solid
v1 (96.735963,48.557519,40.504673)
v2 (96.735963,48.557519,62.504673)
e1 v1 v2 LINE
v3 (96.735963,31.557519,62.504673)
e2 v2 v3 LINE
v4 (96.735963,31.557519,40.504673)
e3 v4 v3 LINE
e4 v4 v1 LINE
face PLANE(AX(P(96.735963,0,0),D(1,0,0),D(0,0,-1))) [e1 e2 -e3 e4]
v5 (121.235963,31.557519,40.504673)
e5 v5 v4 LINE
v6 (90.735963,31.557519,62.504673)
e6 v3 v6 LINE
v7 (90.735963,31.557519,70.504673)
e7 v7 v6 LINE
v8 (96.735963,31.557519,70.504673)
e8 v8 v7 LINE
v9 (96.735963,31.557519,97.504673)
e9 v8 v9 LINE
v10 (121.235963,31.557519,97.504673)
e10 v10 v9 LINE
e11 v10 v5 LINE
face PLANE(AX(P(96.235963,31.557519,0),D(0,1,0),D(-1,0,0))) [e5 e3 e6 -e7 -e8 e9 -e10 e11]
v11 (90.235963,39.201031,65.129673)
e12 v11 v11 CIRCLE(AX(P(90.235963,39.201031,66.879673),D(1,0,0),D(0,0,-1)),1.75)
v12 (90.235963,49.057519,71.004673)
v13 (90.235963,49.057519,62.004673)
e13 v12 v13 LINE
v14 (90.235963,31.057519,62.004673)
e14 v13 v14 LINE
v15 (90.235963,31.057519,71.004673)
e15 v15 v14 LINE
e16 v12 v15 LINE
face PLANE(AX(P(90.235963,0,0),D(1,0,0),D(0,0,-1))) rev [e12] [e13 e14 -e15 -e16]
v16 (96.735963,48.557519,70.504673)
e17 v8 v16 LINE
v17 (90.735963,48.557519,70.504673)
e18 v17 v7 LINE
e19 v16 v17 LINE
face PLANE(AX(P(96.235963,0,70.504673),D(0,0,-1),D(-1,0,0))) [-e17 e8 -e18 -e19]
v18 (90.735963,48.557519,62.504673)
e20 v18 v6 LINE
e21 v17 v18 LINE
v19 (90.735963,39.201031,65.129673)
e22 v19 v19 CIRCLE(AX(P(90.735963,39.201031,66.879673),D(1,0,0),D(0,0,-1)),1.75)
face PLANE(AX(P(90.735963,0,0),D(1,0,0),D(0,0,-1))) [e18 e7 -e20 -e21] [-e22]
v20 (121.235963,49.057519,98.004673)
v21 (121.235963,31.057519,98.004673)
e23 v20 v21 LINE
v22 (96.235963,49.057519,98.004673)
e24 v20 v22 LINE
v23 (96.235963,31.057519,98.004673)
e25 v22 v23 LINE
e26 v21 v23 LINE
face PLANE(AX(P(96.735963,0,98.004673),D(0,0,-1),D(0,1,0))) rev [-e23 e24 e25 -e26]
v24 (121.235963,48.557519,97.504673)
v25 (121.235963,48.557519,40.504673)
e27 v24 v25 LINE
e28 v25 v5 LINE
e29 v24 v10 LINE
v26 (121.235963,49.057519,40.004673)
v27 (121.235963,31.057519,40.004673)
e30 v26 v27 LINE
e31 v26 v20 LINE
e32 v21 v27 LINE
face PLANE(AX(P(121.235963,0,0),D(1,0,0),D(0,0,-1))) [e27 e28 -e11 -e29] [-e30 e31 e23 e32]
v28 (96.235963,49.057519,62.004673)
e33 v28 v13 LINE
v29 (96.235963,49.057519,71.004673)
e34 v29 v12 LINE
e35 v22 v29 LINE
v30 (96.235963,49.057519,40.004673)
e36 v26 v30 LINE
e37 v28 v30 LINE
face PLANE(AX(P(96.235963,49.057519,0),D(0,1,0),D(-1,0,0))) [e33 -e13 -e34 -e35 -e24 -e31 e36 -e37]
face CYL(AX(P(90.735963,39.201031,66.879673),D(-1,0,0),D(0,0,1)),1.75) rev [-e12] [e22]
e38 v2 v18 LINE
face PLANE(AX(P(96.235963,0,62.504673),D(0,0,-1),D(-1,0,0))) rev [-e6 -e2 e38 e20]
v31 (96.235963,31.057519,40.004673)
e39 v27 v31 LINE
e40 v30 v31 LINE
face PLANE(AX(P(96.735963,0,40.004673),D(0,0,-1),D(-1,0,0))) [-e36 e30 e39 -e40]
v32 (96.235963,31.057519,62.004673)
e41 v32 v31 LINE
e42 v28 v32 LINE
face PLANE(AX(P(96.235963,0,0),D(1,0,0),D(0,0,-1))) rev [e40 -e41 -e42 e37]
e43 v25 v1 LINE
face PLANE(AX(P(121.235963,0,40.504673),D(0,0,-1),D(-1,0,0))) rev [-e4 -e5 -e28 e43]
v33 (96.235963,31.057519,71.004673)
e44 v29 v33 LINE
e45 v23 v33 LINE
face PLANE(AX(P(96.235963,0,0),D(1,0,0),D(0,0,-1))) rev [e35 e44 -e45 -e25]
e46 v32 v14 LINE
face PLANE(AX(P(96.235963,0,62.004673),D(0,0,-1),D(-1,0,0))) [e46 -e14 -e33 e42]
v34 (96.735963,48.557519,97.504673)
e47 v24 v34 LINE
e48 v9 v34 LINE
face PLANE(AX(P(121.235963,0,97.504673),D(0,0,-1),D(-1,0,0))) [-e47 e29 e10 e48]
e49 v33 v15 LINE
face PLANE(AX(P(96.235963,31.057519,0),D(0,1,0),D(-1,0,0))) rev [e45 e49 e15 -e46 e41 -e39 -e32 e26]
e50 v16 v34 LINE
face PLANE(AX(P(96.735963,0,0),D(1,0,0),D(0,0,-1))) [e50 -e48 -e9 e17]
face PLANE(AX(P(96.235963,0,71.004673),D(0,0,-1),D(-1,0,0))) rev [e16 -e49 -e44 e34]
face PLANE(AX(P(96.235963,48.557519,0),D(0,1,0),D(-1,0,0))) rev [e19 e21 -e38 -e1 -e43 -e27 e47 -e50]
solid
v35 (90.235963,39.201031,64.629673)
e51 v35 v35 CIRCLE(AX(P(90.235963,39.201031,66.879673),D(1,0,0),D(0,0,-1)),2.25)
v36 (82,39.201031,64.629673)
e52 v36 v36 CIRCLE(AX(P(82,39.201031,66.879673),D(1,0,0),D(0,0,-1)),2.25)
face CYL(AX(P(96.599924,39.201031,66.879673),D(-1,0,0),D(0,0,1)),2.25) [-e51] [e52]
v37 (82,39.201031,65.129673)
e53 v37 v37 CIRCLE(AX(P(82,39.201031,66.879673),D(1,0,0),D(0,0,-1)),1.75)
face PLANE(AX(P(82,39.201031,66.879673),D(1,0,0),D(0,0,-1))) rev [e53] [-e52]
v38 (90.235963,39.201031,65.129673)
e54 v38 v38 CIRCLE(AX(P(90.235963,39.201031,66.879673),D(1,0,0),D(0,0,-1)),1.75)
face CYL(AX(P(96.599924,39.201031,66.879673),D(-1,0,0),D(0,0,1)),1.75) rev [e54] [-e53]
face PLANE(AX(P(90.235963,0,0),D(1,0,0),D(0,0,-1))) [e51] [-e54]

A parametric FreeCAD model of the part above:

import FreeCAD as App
import Part
import Sketcher
Q = App.Units.Quantity


def add_polygon(sketch, points):
    """Adds a closed chain of lines whose ends are joined by coincident constraints."""
    first, n = sketch.GeometryCount, len(points)
    for a, b in zip(points, points[1:] + points[:1]):
        sketch.addGeometry(Part.LineSegment(App.Vector(*a, 0), App.Vector(*b, 0)), False)
    for i in range(n):
        sketch.addConstraint(Sketcher.Constraint("Coincident", first + i, 2, first + (i + 1) % n, 1))

doc = App.newDocument("Part")
body = doc.addObject("PartDesign::Body", "Body")

# Sketch on YZ plane
sketch1 = body.newObject("Sketcher::SketchObject", "Sketch")
sketch1.AttachmentSupport = (doc.getObject("YZ_Plane"), [""])
sketch1.MapMode = "FlatFace"
sketch1.AttachmentOffset = App.Placement(App.Vector(0, 0, 82), App.Rotation())
sketch1.addGeometry([
    Part.Circle(App.Vector(39.201031, 66.879673, 0), App.Vector(0, 0, 1), 2.25),
    Part.Circle(App.Vector(39.201031, 66.879673, 0), App.Vector(0, 0, 1), 1.75),
], False)
sketch1.addConstraint([
    Sketcher.Constraint("Coincident", 1, 3, 0, 3),
    Sketcher.Constraint("Diameter", 0, Q("4.5 mm")),
    Sketcher.Constraint("Diameter", 1, Q("3.5 mm")),
    Sketcher.Constraint("DistanceX", -1, 1, 0, 3, Q("39.201031 mm")),
    Sketcher.Constraint("DistanceY", -1, 1, 0, 3, Q("66.879673 mm")),
])
pad1 = body.newObject("PartDesign::Pad", "Pad")
pad1.Profile = sketch1
pad1.Length = 8.235963
body2 = doc.addObject("PartDesign::Body", "Body001")

# Sketch on YZ plane
sketch2 = body2.newObject("Sketcher::SketchObject", "Sketch001")
sketch2.AttachmentSupport = (doc.getObject("YZ_Plane001"), [""])
sketch2.MapMode = "FlatFace"
sketch2.AttachmentOffset = App.Placement(App.Vector(0, 0, 90.235963), App.Rotation())
add_polygon(sketch2, [(49.057519, 71.004673), (31.057519, 71.004673), (31.057519, 62.004673), (49.057519, 62.004673)])  # lines 0-3
add_polygon(sketch2, [(31.557519, 62.504673), (31.557519, 70.504673), (48.557519, 70.504673), (48.557519, 62.504673)])  # lines 4-7
sketch2.addConstraint([
    Sketcher.Constraint("Horizontal", 0),
    Sketcher.Constraint("Vertical", 1),
    Sketcher.Constraint("Horizontal", 2),
    Sketcher.Constraint("Vertical", 3),
    Sketcher.Constraint("Vertical", 4),
    Sketcher.Constraint("Horizontal", 5),
    Sketcher.Constraint("Vertical", 6),
    Sketcher.Constraint("Horizontal", 7),
    Sketcher.Constraint("DistanceX", 0, 2, 0, 1, Q("18 mm")),
    Sketcher.Constraint("DistanceX", 5, 1, 5, 2, Q("17 mm")),
    Sketcher.Constraint("DistanceY", 1, 2, 1, 1, Q("9 mm")),
    Sketcher.Constraint("DistanceY", 4, 1, 4, 2, Q("8 mm")),
    Sketcher.Constraint("DistanceX", 0, 2, 4, 2, Q("0.5 mm")),
    Sketcher.Constraint("DistanceY", 4, 2, 0, 2, Q("0.5 mm")),
    Sketcher.Constraint("DistanceX", -1, 1, 0, 2, Q("31.057519 mm")),
    Sketcher.Constraint("DistanceY", -1, 1, 0, 2, Q("71.004673 mm")),
])
pad2 = body2.newObject("PartDesign::Pad", "Pad001")
pad2.Profile = sketch2
pad2.Length = 6

# Sketch on YZ plane
sketch3 = body2.newObject("Sketcher::SketchObject", "Sketch002")
sketch3.AttachmentSupport = (doc.getObject("YZ_Plane001"), [""])
sketch3.MapMode = "FlatFace"
sketch3.AttachmentOffset = App.Placement(App.Vector(0, 0, 90.235963), App.Rotation())
add_polygon(sketch3, [(48.557519, 70.504673), (31.557519, 70.504673), (31.557519, 62.504673), (48.557519, 62.504673)])  # lines 0-3
sketch3.addGeometry(Part.Circle(App.Vector(39.201031, 66.879673, 0), App.Vector(0, 0, 1), 1.75), False)  # 4
sketch3.addConstraint([
    Sketcher.Constraint("Horizontal", 0),
    Sketcher.Constraint("Vertical", 1),
    Sketcher.Constraint("Horizontal", 2),
    Sketcher.Constraint("Vertical", 3),
    Sketcher.Constraint("Diameter", 4, Q("3.5 mm")),
    Sketcher.Constraint("DistanceX", 0, 2, 0, 1, Q("17 mm")),
    Sketcher.Constraint("DistanceY", 1, 2, 1, 1, Q("8 mm")),
    Sketcher.Constraint("DistanceY", 4, 3, 0, 2, Q("3.625 mm")),
    Sketcher.Constraint("DistanceX", -1, 1, 4, 3, Q("39.201031 mm")),
    Sketcher.Constraint("DistanceX", -1, 1, 0, 2, Q("31.557519 mm")),
    Sketcher.Constraint("DistanceY", -1, 1, 4, 3, Q("66.879673 mm")),
])
pad3 = body2.newObject("PartDesign::Pad", "Pad002")
pad3.Profile = sketch3
pad3.Length = 0.5

# Sketch on YZ plane
sketch4 = body2.newObject("Sketcher::SketchObject", "Sketch003")
sketch4.AttachmentSupport = (doc.getObject("YZ_Plane001"), [""])
sketch4.MapMode = "FlatFace"
sketch4.AttachmentOffset = App.Placement(App.Vector(0, 0, 96.235963), App.Rotation())
add_polygon(sketch4, [(49.057519, 98.004673), (31.057519, 98.004673), (31.057519, 40.004673), (49.057519, 40.004673)])  # lines 0-3
add_polygon(sketch4, [(31.557519, 62.504673), (31.557519, 70.504673), (48.557519, 70.504673), (48.557519, 62.504673)])  # lines 4-7
sketch4.addConstraint([
    Sketcher.Constraint("Horizontal", 0),
    Sketcher.Constraint("Vertical", 1),
    Sketcher.Constraint("Horizontal", 2),
    Sketcher.Constraint("Vertical", 3),
    Sketcher.Constraint("Vertical", 4),
    Sketcher.Constraint("Horizontal", 5),
    Sketcher.Constraint("Vertical", 6),
    Sketcher.Constraint("Horizontal", 7),
    Sketcher.Constraint("DistanceX", 0, 2, 0, 1, Q("18 mm")),
    Sketcher.Constraint("DistanceX", 5, 1, 5, 2, Q("17 mm")),
    Sketcher.Constraint("DistanceY", 1, 2, 1, 1, Q("58 mm")),
    Sketcher.Constraint("DistanceY", 4, 1, 4, 2, Q("8 mm")),
    Sketcher.Constraint("DistanceX", 0, 2, 4, 2, Q("0.5 mm")),
    Sketcher.Constraint("DistanceY", 4, 2, 0, 2, Q("27.5 mm")),
    Sketcher.Constraint("DistanceX", -1, 1, 0, 2, Q("31.057519 mm")),
    Sketcher.Constraint("DistanceY", -1, 1, 0, 2, Q("98.004673 mm")),
])
pad4 = body2.newObject("PartDesign::Pad", "Pad003")
pad4.Profile = sketch4
pad4.Length = 0.5

# Sketch on YZ plane
sketch5 = body2.newObject("Sketcher::SketchObject", "Sketch004")
sketch5.AttachmentSupport = (doc.getObject("YZ_Plane001"), [""])
sketch5.MapMode = "FlatFace"
sketch5.AttachmentOffset = App.Placement(App.Vector(0, 0, 96.235963), App.Rotation())
add_polygon(sketch5, [(49.057519, 98.004673), (31.057519, 98.004673), (31.057519, 40.004673), (49.057519, 40.004673)])  # lines 0-3
add_polygon(sketch5, [(31.557519, 97.504673), (48.557519, 97.504673), (48.557519, 40.504673), (31.557519, 40.504673)])  # lines 4-7
sketch5.addConstraint([
    Sketcher.Constraint("Horizontal", 0),
    Sketcher.Constraint("Vertical", 1),
    Sketcher.Constraint("Horizontal", 2),
    Sketcher.Constraint("Vertical", 3),
    Sketcher.Constraint("Horizontal", 4),
    Sketcher.Constraint("Vertical", 5),
    Sketcher.Constraint("Horizontal", 6),
    Sketcher.Constraint("Vertical", 7),
    Sketcher.Constraint("DistanceX", 0, 2, 0, 1, Q("18 mm")),
    Sketcher.Constraint("DistanceX", 4, 1, 4, 2, Q("17 mm")),
    Sketcher.Constraint("DistanceY", 1, 2, 1, 1, Q("58 mm")),
    Sketcher.Constraint("DistanceY", 5, 2, 5, 1, Q("57 mm")),
    Sketcher.Constraint("DistanceX", 4, 2, 3, 2, Q("0.5 mm")),
    Sketcher.Constraint("DistanceY", 4, 2, 3, 2, Q("0.5 mm")),
    Sketcher.Constraint("DistanceX", -1, 1, 0, 2, Q("31.057519 mm")),
    Sketcher.Constraint("DistanceY", -1, 1, 0, 2, Q("98.004673 mm")),
])
pad5 = body2.newObject("PartDesign::Pad", "Pad004")
pad5.Profile = sketch5
pad5.Length = 25

doc.recompute()
